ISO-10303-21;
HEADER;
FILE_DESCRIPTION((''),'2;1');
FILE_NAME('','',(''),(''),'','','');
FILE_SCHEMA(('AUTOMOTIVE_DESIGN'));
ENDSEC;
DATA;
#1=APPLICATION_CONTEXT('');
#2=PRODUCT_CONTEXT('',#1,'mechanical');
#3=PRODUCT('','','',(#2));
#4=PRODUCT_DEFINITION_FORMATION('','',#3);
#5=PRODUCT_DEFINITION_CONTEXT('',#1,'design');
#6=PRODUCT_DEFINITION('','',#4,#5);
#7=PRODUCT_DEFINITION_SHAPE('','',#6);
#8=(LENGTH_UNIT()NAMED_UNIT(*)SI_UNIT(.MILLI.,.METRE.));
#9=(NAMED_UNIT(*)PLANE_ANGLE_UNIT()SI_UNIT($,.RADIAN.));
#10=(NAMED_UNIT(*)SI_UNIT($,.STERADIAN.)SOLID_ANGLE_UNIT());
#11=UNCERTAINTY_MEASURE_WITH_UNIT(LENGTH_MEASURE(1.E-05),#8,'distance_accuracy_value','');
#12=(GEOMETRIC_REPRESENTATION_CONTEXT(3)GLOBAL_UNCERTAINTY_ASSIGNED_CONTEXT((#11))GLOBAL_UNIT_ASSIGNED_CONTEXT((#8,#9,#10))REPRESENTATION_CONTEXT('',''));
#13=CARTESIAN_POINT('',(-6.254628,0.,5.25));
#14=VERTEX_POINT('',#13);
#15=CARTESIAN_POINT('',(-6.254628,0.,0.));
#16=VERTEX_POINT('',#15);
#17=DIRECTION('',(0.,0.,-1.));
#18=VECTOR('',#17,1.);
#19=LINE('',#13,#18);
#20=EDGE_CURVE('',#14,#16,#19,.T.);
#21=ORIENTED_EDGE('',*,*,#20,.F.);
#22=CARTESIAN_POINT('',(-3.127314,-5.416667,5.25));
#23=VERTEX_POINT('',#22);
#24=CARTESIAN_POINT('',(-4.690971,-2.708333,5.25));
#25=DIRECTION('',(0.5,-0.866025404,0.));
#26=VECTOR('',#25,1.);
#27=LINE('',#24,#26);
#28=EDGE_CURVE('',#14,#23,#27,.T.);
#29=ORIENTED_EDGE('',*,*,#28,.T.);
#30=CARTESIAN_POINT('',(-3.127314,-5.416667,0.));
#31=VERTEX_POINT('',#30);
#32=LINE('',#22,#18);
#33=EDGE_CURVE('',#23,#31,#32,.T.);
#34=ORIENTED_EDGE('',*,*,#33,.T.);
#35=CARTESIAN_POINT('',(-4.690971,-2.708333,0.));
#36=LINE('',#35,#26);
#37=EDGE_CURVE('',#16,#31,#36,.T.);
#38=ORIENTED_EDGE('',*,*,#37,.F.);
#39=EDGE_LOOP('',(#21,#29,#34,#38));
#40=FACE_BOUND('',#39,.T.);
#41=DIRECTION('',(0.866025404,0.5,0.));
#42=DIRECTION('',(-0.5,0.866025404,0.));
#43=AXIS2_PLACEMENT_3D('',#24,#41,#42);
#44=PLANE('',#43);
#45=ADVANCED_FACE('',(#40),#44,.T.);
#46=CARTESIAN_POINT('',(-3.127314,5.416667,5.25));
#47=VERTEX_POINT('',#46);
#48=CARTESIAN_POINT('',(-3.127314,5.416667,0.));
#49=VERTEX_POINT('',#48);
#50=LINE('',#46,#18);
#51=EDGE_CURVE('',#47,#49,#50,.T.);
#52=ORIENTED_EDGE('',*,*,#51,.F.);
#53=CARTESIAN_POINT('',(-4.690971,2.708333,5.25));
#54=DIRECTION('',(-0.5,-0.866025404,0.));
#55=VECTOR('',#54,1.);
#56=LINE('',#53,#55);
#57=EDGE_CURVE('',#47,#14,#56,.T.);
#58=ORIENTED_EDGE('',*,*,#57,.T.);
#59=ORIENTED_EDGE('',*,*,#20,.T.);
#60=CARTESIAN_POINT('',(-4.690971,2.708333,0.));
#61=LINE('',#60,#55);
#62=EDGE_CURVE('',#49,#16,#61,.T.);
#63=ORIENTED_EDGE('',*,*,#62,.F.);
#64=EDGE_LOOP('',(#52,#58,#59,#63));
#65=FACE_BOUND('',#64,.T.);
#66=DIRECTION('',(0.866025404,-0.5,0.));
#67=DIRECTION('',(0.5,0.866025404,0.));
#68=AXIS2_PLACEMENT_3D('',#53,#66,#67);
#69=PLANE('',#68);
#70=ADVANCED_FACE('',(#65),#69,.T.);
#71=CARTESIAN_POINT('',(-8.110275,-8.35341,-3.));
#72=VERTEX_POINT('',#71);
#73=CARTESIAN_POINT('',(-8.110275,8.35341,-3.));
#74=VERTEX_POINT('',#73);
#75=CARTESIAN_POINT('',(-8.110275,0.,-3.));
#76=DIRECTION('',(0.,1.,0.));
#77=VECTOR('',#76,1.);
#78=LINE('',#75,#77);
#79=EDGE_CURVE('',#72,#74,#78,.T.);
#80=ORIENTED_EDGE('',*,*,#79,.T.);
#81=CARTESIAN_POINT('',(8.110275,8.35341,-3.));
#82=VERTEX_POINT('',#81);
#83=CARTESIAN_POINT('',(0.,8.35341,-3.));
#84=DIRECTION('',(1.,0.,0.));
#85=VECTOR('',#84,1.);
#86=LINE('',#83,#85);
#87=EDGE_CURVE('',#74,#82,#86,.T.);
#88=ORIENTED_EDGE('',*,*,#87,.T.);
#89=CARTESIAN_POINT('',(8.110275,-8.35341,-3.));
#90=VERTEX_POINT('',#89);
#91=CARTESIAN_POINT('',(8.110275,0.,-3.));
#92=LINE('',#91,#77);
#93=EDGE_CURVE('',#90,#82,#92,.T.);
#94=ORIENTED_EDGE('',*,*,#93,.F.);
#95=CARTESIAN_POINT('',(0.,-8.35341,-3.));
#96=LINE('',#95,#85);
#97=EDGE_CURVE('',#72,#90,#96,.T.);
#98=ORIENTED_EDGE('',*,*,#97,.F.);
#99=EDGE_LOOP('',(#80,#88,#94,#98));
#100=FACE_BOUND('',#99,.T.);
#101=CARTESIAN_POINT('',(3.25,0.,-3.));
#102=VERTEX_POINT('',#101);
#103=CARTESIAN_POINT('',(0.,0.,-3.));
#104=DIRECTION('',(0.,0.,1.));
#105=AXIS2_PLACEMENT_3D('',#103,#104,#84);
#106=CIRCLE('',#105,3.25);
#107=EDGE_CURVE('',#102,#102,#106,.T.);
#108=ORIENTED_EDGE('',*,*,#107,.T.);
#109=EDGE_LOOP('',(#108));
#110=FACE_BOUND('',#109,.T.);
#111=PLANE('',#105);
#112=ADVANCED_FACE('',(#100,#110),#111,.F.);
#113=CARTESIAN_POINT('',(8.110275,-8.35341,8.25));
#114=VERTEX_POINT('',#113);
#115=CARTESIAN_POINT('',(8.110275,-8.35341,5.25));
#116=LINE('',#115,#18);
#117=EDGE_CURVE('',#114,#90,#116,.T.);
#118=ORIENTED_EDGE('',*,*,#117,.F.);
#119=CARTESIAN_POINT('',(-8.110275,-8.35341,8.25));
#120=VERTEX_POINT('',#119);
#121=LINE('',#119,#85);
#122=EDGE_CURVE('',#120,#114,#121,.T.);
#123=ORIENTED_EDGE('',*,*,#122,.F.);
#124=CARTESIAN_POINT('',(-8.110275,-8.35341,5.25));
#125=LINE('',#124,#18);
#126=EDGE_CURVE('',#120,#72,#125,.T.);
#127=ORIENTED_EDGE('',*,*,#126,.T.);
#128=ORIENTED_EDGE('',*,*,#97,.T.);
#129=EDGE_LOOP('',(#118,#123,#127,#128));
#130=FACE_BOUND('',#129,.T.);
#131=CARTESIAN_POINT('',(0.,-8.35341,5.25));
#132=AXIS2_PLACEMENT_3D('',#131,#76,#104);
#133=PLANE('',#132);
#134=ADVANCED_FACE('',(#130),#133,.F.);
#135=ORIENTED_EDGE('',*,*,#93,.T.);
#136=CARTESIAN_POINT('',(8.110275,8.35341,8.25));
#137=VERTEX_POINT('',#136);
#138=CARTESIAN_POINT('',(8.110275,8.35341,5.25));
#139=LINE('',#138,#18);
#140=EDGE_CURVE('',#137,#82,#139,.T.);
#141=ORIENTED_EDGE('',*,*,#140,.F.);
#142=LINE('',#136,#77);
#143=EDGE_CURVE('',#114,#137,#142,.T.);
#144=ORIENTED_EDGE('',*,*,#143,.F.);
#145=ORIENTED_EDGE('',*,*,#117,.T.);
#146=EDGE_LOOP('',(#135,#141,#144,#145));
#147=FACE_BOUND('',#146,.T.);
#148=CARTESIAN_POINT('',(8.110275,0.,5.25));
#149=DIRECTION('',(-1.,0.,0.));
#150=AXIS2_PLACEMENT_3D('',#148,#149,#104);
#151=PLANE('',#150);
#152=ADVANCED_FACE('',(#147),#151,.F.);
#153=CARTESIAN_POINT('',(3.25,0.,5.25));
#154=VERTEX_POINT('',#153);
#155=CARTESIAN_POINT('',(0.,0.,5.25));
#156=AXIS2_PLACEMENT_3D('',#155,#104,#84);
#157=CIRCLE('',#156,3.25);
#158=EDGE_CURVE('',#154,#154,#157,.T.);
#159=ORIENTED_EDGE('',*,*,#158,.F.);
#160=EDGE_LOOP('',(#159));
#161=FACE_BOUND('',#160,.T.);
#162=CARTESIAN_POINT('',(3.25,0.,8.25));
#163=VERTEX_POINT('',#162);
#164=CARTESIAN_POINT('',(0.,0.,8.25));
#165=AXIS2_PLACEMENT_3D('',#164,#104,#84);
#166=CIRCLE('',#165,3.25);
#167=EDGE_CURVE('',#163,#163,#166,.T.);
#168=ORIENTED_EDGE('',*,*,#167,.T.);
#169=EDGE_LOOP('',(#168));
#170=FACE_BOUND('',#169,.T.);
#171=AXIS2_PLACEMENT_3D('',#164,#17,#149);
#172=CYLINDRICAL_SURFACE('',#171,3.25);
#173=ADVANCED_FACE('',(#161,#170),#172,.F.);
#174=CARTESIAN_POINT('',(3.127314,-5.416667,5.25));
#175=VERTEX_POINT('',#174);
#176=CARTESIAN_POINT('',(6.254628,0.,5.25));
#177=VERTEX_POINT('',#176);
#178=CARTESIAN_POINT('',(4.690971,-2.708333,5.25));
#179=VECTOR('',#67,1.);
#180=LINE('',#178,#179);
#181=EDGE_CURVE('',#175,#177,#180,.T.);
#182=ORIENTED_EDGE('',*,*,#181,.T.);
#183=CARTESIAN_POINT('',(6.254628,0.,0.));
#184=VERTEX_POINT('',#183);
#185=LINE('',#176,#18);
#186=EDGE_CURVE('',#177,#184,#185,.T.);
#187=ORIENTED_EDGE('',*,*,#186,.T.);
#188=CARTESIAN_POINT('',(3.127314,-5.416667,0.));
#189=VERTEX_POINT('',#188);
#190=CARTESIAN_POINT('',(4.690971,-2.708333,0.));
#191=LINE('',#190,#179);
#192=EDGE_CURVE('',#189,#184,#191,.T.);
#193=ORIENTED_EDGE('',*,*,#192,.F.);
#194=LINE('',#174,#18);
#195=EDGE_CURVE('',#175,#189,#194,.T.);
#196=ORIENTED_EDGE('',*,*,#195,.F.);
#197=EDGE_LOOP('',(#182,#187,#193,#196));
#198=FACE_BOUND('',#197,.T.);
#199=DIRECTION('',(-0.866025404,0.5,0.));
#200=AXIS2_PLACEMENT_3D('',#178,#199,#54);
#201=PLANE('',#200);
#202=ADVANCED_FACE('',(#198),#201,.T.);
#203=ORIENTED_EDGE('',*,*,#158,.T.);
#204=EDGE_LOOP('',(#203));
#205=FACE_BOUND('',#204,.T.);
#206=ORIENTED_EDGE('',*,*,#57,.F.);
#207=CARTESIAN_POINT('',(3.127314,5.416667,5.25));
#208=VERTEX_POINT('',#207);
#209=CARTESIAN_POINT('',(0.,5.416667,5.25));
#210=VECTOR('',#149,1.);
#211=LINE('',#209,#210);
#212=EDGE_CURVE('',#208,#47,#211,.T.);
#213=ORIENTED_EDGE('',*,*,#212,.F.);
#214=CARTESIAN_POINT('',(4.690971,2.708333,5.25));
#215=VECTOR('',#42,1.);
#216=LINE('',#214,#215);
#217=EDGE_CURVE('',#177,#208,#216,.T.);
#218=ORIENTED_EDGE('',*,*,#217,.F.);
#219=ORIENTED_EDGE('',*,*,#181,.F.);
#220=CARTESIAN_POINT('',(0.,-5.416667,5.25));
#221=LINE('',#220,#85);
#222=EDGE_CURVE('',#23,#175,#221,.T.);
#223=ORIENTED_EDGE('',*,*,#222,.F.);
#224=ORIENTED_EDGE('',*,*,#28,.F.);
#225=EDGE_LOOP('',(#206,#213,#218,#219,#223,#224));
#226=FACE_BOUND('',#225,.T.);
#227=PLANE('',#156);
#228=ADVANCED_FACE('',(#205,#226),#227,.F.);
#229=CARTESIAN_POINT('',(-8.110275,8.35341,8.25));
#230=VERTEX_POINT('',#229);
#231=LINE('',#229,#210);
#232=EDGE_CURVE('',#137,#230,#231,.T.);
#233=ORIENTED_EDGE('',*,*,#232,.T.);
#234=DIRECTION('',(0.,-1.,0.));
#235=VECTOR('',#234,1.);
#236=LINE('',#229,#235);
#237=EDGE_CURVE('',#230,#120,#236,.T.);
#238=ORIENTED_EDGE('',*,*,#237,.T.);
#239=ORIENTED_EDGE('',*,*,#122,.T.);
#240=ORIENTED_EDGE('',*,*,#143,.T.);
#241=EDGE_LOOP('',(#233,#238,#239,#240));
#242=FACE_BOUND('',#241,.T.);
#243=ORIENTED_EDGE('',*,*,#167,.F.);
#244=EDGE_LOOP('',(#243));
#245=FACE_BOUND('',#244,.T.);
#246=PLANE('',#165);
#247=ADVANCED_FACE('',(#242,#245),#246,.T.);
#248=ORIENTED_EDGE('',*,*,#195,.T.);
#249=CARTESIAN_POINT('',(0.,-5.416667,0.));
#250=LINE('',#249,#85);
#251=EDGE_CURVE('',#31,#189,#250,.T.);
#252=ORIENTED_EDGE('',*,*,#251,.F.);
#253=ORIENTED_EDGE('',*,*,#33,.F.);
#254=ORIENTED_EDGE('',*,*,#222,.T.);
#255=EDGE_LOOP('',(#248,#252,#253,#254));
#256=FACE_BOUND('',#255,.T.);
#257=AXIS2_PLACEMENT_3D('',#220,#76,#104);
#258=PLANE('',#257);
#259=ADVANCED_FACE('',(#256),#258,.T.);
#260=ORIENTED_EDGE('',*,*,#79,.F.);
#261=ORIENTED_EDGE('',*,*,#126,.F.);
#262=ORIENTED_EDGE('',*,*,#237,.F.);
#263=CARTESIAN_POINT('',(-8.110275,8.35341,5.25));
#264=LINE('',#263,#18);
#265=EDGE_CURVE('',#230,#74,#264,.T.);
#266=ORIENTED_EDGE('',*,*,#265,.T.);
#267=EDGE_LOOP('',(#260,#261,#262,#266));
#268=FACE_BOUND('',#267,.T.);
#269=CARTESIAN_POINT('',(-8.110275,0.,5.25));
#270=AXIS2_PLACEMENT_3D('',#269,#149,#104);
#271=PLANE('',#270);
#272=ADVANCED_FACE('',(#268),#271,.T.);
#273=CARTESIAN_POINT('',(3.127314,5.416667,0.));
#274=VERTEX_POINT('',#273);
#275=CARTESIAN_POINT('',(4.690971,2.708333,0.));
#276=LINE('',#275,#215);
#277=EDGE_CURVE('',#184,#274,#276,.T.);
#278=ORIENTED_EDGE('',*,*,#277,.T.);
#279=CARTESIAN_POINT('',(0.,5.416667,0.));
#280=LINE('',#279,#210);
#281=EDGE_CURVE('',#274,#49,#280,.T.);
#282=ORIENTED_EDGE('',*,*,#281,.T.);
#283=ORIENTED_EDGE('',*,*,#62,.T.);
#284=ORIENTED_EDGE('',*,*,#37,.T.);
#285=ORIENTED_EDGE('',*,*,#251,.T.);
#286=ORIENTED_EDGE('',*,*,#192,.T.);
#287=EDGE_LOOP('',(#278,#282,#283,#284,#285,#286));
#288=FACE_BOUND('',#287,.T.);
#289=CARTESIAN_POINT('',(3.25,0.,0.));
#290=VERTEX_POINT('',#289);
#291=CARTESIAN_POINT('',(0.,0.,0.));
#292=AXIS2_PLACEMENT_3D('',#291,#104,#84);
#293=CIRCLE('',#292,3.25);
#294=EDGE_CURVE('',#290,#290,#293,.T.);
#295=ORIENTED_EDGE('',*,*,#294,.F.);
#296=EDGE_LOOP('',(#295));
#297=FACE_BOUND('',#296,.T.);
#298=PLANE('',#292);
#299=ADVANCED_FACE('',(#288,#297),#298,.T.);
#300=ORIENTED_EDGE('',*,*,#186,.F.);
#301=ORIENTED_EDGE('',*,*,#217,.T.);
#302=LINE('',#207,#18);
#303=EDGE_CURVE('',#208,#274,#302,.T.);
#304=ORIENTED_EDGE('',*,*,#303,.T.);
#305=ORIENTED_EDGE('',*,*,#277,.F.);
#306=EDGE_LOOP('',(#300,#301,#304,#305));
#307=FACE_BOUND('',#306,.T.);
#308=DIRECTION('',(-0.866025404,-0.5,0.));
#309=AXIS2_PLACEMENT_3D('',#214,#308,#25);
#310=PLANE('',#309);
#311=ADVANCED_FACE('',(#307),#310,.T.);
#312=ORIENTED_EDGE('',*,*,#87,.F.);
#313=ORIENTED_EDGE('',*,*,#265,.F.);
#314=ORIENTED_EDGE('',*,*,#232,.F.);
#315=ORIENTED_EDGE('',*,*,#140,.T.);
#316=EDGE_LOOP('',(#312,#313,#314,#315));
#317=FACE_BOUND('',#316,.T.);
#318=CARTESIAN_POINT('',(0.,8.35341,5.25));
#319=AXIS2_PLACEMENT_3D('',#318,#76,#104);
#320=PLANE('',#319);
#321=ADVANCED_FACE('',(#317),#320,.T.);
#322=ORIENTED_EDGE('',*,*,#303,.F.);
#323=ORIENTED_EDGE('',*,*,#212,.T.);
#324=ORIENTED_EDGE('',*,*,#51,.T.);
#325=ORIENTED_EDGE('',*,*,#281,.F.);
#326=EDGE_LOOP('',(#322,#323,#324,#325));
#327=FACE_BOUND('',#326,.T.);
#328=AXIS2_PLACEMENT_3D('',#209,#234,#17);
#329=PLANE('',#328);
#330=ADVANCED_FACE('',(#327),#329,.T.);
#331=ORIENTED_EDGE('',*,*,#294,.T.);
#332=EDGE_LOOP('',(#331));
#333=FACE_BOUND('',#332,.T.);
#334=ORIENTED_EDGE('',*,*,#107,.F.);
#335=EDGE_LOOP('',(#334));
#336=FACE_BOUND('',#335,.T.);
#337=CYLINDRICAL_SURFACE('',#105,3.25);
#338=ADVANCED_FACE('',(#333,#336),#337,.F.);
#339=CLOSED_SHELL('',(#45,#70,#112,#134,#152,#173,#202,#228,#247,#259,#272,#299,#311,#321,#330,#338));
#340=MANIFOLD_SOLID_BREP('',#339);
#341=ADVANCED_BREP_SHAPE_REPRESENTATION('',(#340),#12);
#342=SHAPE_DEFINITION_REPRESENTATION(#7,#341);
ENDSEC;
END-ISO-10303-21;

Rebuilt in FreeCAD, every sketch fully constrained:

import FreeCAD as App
import Part
import Sketcher
from FreeCAD import Vector
Q = App.Units.Quantity


def add_polygon(sketch, points):
    """Adds a closed chain of lines whose ends are joined by coincident constraints."""
    first, n = sketch.GeometryCount, len(points)
    for a, b in zip(points, points[1:] + points[:1]):
        sketch.addGeometry(Part.LineSegment(App.Vector(*a, 0), App.Vector(*b, 0)), False)
    for i in range(n):
        sketch.addConstraint(Sketcher.Constraint("Coincident", first + i, 2, first + (i + 1) % n, 1))

doc = App.newDocument("Part")
body = doc.addObject("PartDesign::Body", "Body")

sketch1 = doc.addObject("Sketcher::SketchObject", "Sketch")
body.addObject(sketch1)
sketch1.AttachmentSupport = (doc.XY_Plane, [""])
sketch1.MapMode = "FlatFace"
add_polygon(sketch1, [(-8, 8), (-8, -8), (8, -8), (8, 8)])
add_polygon(sketch1, [(6, 0), (3, -5), (-3, -5), (-6, 0), (-3, 5), (3, 5)])
sketch1.addConstraint(Sketcher.Constraint("Vertical", 0))
sketch1.addConstraint(Sketcher.Constraint("Horizontal", 1))
sketch1.addConstraint(Sketcher.Constraint("Vertical", 2))
sketch1.addConstraint(Sketcher.Constraint("Horizontal", 3))
sketch1.addConstraint(Sketcher.Constraint("Horizontal", 5))
sketch1.addConstraint(Sketcher.Constraint("Horizontal", 8))
sketch1.addConstraint(Sketcher.Constraint("Symmetric", 0, 2, 2, 2, -1, 1))
sketch1.addConstraint(Sketcher.Constraint("Symmetric", 4, 2, 7, 2, -1, 1))
sketch1.addConstraint(Sketcher.Constraint("Symmetric", 6, 2, 9, 2, -1, 1))
sketch1.addConstraint(Sketcher.Constraint("PointOnObject", 6, 2, -1))
sketch1.addConstraint(Sketcher.Constraint("Parallel", 6, 9))
sketch1.addConstraint(Sketcher.Constraint("Vertical", 5, 2, 7, 2))
sketch1.addConstraint(Sketcher.Constraint("Angle", 4, Q("-120 deg")))
sketch1.addConstraint(Sketcher.Constraint("DistanceX", 1, 1, 1, 2, Q("16.220551 mm")))
sketch1.addConstraint(Sketcher.Constraint("DistanceY", 0, 2, 0, 1, Q("16.706819 mm")))
sketch1.addConstraint(Sketcher.Constraint("DistanceX", 5, 2, 5, 1, Q("6.254628 mm")))
sketch1.addConstraint(Sketcher.Constraint("DistanceX", 6, 2, 4, 2, Q("9.381942 mm")))
pad1 = doc.addObject("PartDesign::Pad", "Pad")
body.addObject(pad1)
pad1.Profile = sketch1
pad1.Length = 5.25

sketch2 = doc.addObject("Sketcher::SketchObject", "Sketch001")
body.addObject(sketch2)
sketch2.AttachmentSupport = (doc.XY_Plane, [""])
sketch2.MapMode = "FlatFace"
sketch2.AttachmentOffset = App.Placement(Vector(0, 0, 5.25), App.Rotation())
add_polygon(sketch2, [(-8.1, 8.4), (-8.1, -8.4), (8.1, -8.4), (8.1, 8.4)])
sketch2.addGeometry(Part.Circle(Vector(0, 0, 0), Vector(0, 0, 1), 3.2), False)
sketch2.addConstraint(Sketcher.Constraint("Vertical", 0))
sketch2.addConstraint(Sketcher.Constraint("Horizontal", 1))
sketch2.addConstraint(Sketcher.Constraint("Vertical", 2))
sketch2.addConstraint(Sketcher.Constraint("Horizontal", 3))
sketch2.addConstraint(Sketcher.Constraint("Coincident", 4, 3, -1, 1))
sketch2.addConstraint(Sketcher.Constraint("Symmetric", 0, 2, 2, 2, -1, 1))
sketch2.addConstraint(Sketcher.Constraint("Diameter", 4, Q("6.5 mm")))
sketch2.addConstraint(Sketcher.Constraint("DistanceX", 1, 1, 1, 2, Q("16.220551 mm")))
sketch2.addConstraint(Sketcher.Constraint("DistanceY", 0, 2, 0, 1, Q("16.706819 mm")))
pad2 = doc.addObject("PartDesign::Pad", "Pad001")
body.addObject(pad2)
pad2.Profile = sketch2
pad2.Length = 3

sketch3 = doc.addObject("Sketcher::SketchObject", "Sketch002")
body.addObject(sketch3)
sketch3.AttachmentSupport = (doc.XY_Plane, [""])
sketch3.MapMode = "FlatFace"
sketch3.AttachmentOffset = App.Placement(Vector(0, 0, -3), App.Rotation())
add_polygon(sketch3, [(-8.1, 8.4), (-8.1, -8.4), (8.1, -8.4), (8.1, 8.4)])
sketch3.addGeometry(Part.Circle(Vector(0, 0, 0), Vector(0, 0, 1), 3.2), False)
sketch3.addConstraint(Sketcher.Constraint("Vertical", 0))
sketch3.addConstraint(Sketcher.Constraint("Horizontal", 1))
sketch3.addConstraint(Sketcher.Constraint("Vertical", 2))
sketch3.addConstraint(Sketcher.Constraint("Horizontal", 3))
sketch3.addConstraint(Sketcher.Constraint("Coincident", 4, 3, -1, 1))
sketch3.addConstraint(Sketcher.Constraint("Symmetric", 0, 2, 2, 2, -1, 1))
sketch3.addConstraint(Sketcher.Constraint("Diameter", 4, Q("6.5 mm")))
sketch3.addConstraint(Sketcher.Constraint("DistanceX", 1, 1, 1, 2, Q("16.220551 mm")))
sketch3.addConstraint(Sketcher.Constraint("DistanceY", 0, 2, 0, 1, Q("16.706819 mm")))
pad3 = doc.addObject("PartDesign::Pad", "Pad002")
body.addObject(pad3)
pad3.Profile = sketch3
pad3.Length = 3

doc.recompute()
